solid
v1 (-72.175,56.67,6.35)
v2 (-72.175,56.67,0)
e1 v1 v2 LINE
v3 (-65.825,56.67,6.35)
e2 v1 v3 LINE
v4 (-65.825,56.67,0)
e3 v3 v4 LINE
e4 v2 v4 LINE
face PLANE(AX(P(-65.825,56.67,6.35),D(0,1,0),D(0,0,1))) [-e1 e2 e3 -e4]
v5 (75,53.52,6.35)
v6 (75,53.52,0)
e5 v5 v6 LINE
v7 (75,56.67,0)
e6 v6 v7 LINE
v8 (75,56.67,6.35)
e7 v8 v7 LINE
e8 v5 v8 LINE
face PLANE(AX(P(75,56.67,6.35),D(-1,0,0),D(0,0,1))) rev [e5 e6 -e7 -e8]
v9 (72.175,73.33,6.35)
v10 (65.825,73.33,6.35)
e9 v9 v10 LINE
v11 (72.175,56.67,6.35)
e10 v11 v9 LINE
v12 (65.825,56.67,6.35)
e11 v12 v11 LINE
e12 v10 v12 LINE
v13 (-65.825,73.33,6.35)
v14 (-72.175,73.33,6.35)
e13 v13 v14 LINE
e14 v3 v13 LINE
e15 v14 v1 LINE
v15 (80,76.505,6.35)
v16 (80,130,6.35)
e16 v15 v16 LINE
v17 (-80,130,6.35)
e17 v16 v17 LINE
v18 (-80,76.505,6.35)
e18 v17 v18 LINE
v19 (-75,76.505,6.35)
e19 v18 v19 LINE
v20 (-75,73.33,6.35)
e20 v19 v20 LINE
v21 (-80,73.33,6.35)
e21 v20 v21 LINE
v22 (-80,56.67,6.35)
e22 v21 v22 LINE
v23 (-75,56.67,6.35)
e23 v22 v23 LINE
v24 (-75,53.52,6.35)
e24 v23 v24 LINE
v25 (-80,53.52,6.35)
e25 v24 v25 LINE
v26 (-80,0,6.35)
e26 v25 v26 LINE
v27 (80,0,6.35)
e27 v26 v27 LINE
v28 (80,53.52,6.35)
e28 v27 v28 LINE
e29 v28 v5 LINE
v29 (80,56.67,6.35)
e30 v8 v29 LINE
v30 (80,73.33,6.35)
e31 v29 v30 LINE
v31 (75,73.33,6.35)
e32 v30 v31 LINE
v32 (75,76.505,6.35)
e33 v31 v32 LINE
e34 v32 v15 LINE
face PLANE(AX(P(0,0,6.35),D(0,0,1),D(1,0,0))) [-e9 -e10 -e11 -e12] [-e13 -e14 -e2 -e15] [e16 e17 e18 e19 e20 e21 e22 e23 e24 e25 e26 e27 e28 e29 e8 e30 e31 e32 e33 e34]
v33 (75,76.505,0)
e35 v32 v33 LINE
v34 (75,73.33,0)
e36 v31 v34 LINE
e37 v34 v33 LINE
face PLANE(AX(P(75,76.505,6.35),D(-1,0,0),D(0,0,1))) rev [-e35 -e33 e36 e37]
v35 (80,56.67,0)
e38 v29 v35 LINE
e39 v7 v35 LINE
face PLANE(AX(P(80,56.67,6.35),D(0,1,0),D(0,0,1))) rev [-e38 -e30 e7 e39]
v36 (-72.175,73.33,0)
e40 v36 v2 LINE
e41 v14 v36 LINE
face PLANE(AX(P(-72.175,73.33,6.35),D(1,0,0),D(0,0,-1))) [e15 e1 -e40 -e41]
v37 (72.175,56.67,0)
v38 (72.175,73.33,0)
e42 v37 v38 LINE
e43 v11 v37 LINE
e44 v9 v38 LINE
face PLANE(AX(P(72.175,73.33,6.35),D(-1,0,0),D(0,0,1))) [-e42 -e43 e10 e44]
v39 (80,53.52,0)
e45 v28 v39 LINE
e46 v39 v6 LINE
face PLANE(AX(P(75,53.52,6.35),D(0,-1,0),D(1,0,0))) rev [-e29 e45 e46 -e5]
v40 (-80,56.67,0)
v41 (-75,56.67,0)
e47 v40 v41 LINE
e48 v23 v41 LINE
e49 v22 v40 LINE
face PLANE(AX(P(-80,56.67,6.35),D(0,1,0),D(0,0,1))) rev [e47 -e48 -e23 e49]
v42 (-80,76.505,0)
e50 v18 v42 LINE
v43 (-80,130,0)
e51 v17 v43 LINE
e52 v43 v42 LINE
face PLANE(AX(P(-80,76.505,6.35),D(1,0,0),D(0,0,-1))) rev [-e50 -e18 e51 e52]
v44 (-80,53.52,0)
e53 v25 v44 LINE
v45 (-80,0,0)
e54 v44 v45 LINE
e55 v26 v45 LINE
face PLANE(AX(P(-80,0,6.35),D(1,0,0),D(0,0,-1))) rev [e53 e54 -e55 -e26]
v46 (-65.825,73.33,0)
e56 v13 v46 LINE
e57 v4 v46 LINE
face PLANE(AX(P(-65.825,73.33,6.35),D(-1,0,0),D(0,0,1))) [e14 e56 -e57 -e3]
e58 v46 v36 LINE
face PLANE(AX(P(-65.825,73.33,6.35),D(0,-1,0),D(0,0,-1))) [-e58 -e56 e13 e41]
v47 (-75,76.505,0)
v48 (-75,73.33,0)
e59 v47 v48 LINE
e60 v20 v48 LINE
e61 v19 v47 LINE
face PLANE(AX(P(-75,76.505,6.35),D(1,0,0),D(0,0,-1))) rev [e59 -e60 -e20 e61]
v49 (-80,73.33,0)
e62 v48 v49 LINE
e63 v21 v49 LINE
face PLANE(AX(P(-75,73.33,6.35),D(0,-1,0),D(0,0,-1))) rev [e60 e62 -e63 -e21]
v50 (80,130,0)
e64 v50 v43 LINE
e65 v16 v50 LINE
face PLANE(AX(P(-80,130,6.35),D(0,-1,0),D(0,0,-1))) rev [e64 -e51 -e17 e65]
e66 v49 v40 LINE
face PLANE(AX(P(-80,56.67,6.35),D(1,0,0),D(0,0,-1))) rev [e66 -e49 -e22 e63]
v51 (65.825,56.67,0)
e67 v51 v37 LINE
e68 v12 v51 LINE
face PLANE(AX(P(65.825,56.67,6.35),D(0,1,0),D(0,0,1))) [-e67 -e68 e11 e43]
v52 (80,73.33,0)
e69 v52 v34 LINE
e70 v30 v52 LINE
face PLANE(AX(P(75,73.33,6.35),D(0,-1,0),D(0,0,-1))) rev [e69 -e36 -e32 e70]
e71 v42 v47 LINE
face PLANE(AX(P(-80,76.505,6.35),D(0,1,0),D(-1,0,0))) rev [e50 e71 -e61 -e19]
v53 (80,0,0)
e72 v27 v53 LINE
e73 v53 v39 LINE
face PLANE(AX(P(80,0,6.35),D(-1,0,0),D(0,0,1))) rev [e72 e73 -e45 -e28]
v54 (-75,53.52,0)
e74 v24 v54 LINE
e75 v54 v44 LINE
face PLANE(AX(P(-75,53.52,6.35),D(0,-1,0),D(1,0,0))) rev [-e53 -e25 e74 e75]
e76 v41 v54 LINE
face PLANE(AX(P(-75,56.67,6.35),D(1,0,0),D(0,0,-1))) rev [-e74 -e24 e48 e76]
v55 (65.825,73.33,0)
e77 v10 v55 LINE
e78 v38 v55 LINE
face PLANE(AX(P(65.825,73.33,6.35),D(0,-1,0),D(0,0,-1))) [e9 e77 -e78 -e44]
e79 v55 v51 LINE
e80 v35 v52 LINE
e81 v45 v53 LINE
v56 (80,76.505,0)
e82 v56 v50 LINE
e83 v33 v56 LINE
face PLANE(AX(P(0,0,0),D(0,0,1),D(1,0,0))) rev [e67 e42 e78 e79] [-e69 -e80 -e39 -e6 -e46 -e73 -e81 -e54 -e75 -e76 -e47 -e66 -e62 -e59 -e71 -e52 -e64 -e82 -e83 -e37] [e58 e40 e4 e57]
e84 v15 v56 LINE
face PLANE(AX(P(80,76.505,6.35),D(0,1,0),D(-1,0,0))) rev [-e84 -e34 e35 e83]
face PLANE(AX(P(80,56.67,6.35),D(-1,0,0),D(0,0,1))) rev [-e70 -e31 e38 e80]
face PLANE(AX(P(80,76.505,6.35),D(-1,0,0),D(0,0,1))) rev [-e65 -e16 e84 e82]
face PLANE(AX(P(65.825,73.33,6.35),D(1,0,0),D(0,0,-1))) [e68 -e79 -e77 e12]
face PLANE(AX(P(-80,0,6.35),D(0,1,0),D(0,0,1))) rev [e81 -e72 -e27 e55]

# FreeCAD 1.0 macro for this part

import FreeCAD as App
import Part
import Sketcher

V = App.Vector


def add_polygon(sketch, points):
    """Adds a closed chain of lines whose ends are joined by coincident constraints."""
    first, n = sketch.GeometryCount, len(points)
    for a, b in zip(points, points[1:] + points[:1]):
        sketch.addGeometry(Part.LineSegment(App.Vector(*a, 0), App.Vector(*b, 0)), False)
    for i in range(n):
        sketch.addConstraint(Sketcher.Constraint("Coincident", first + i, 2, first + (i + 1) % n, 1))

doc = App.newDocument("Part")
params = doc.addObject("Spreadsheet::Sheet", "Params")
for row, (alias, value) in enumerate([
    ("sketch1_width", "160 mm"),
    ("sketch1_width2", "5 mm"),
    ("sketch1_width3", "6.35 mm"),
    ("sketch1_height", "53.52 mm"),
    ("sketch1_height2", "3.15 mm"),
    ("pad1_length", "6.35 mm"),
], start=1):
    params.set(f"A{row}", alias)
    params.set(f"B{row}", "=" + value)
    params.setAlias(f"B{row}", alias)

body = doc.addObject("PartDesign::Body", "Body")

# Sketch on XY plane
sketch1 = doc.addObject("Sketcher::SketchObject", "Sketch")
body.addObject(sketch1)
sketch1.AttachmentSupport = (doc.XY_Plane, [""])
sketch1.MapMode = "FlatFace"
add_polygon(sketch1, [(-80, 0), (80, 0), (80, 53.5), (75, 53.5), (75, 56.7), (80, 56.7), (80, 73.3), (75, 73.3), (75, 76.5), (80, 76.5), (80, 130), (-80, 130), (-80, 76.5), (-75, 76.5), (-75, 73.3), (-80, 73.3), (-80, 56.7), (-75, 56.7), (-75, 53.5), (-80, 53.5)])  # lines 0-19
add_polygon(sketch1, [(-65.8, 56.7), (-72.2, 56.7), (-72.2, 73.3), (-65.8, 73.3)])  # lines 20-23
add_polygon(sketch1, [(72.2, 56.7), (65.8, 56.7), (65.8, 73.3), (72.2, 73.3)])  # lines 24-27
sketch1.addConstraint([
    Sketcher.Constraint("Horizontal", 0),
    Sketcher.Constraint("Vertical", 1),
    Sketcher.Constraint("Horizontal", 2),
    Sketcher.Constraint("Vertical", 3),
    Sketcher.Constraint("Horizontal", 4),
    Sketcher.Constraint("Vertical", 5),
    Sketcher.Constraint("Horizontal", 6),
    Sketcher.Constraint("Vertical", 7),
    Sketcher.Constraint("Horizontal", 8),
    Sketcher.Constraint("Vertical", 9),
    Sketcher.Constraint("Horizontal", 10),
    Sketcher.Constraint("Vertical", 11),
    Sketcher.Constraint("Horizontal", 12),
    Sketcher.Constraint("Vertical", 13),
    Sketcher.Constraint("Horizontal", 14),
    Sketcher.Constraint("Vertical", 15),
    Sketcher.Constraint("Horizontal", 16),
    Sketcher.Constraint("Vertical", 17),
    Sketcher.Constraint("Horizontal", 18),
    Sketcher.Constraint("Vertical", 19),
    Sketcher.Constraint("Horizontal", 20),
    Sketcher.Constraint("Vertical", 21),
    Sketcher.Constraint("Horizontal", 22),
    Sketcher.Constraint("Vertical", 23),
    Sketcher.Constraint("Horizontal", 24),
    Sketcher.Constraint("Vertical", 25),
    Sketcher.Constraint("Horizontal", 26),
    Sketcher.Constraint("Vertical", 27),
    Sketcher.Constraint("Symmetric", 0, 2, 19, 2, -1, 1),
    Sketcher.Constraint("Symmetric", 8, 2, 11, 2, -2),
    Sketcher.Constraint("Symmetric", 6, 2, 13, 2, -2),
    Sketcher.Constraint("Symmetric", 4, 2, 15, 2, -2),
    Sketcher.Constraint("Symmetric", 2, 2, 17, 2, -2),
    Sketcher.Constraint("Symmetric", 23, 2, 24, 2, -2),
    Sketcher.Constraint("Symmetric", 21, 2, 26, 2, -2),
    Sketcher.Constraint("Horizontal", 16, 2, 20, 2),
    Sketcher.Constraint("Horizontal", 14, 2, 21, 2),
    Sketcher.Constraint("Vertical", 1, 2, 4, 2),
    Sketcher.Constraint("Vertical", 3, 2, 6, 2),
    Sketcher.Constraint("Vertical", 5, 2, 8, 2),
    Sketcher.Constraint("DistanceX", 0, 1, 0, 2, 160.0),
    Sketcher.Constraint("DistanceX", 2, 2, 2, 1, 5.0),
    Sketcher.Constraint("DistanceY", -1, 1, 9, 2, 130.0),
    Sketcher.Constraint("DistanceX", 20, 2, 20, 1, 6.35),
    Sketcher.Constraint("DistanceY", 1, 1, 1, 2, 53.52),
    Sketcher.Constraint("DistanceY", 3, 1, 3, 2, 3.15),
    Sketcher.Constraint("DistanceY", 5, 1, 5, 2, 16.66),
    Sketcher.Constraint("DistanceY", 7, 1, 7, 2, 3.175),
    Sketcher.Constraint("DistanceX", 20, 2, -1, 1, 72.175),
])
sketch1.setExpression("Constraints[68]", "Params.sketch1_width")
sketch1.setExpression("Constraints[69]", "Params.sketch1_width2")
sketch1.setExpression("Constraints[71]", "Params.sketch1_width3")
sketch1.setExpression("Constraints[72]", "Params.sketch1_height")
sketch1.setExpression("Constraints[73]", "Params.sketch1_height2")
pad1 = doc.addObject("PartDesign::Pad", "Pad")
body.addObject(pad1)
pad1.Profile = sketch1
pad1.setExpression("Length", "Params.pad1_length")

doc.recompute()
